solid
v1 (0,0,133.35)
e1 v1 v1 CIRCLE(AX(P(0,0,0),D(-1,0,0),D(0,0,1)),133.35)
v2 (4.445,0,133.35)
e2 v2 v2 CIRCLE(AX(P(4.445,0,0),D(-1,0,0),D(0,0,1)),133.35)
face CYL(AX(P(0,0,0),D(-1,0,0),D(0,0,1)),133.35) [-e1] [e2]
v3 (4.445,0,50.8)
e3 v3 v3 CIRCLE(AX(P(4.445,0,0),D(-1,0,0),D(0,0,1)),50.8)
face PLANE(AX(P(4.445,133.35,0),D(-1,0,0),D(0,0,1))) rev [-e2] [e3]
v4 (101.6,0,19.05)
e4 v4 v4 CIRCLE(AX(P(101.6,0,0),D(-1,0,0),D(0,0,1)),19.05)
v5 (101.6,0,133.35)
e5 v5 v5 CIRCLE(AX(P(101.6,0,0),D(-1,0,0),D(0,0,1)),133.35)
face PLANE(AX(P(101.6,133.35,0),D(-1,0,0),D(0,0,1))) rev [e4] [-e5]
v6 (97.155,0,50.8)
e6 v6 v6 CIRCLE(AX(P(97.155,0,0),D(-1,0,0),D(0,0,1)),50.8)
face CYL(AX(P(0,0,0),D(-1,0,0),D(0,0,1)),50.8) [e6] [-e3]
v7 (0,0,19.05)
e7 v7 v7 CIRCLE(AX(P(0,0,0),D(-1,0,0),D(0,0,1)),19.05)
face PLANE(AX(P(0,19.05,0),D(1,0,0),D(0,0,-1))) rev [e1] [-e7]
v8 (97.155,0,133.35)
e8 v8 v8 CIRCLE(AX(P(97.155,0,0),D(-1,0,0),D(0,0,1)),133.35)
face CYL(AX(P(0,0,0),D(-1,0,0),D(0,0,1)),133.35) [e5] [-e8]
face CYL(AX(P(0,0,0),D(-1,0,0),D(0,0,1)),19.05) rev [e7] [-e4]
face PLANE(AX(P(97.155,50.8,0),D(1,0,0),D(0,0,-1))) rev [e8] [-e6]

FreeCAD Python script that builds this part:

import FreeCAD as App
import Part
import Sketcher
Q = App.Units.Quantity


def add_polygon(sketch, points):
    """Adds a closed chain of lines whose ends are joined by coincident constraints."""
    first, n = sketch.GeometryCount, len(points)
    for a, b in zip(points, points[1:] + points[:1]):
        sketch.addGeometry(Part.LineSegment(App.Vector(*a, 0), App.Vector(*b, 0)), False)
    for i in range(n):
        sketch.addConstraint(Sketcher.Constraint("Coincident", first + i, 2, first + (i + 1) % n, 1))

doc = App.newDocument("Part")
body = doc.addObject("PartDesign::Body", "Body")

# Sketch on XY plane
sketch1 = body.newObject("Sketcher::SketchObject", "Sketch")
sketch1.AttachmentSupport = (doc.getObject("XY_Plane"), [""])
sketch1.MapMode = "FlatFace"
add_polygon(sketch1, [(0, 19.1), (101.6, 19.1), (101.6, 133.3), (97.2, 133.3), (97.2, 50.8), (4.4, 50.8), (4.4, 133.3), (0, 133.3)])  # lines 0-7
sketch1.addConstraint([
    Sketcher.Constraint("Horizontal", 0),
    Sketcher.Constraint("Vertical", 1),
    Sketcher.Constraint("Horizontal", 2),
    Sketcher.Constraint("Vertical", 3),
    Sketcher.Constraint("Horizontal", 4),
    Sketcher.Constraint("Vertical", 5),
    Sketcher.Constraint("Horizontal", 6),
    Sketcher.Constraint("Vertical", 7),
    Sketcher.Constraint("PointOnObject", 6, 2, -2),
    Sketcher.Constraint("Horizontal", 2, 2, 5, 2),
    Sketcher.Constraint("Equal", 2, 6),
    Sketcher.Constraint("DistanceX", 0, 1, 0, 2, Q("4 in")),
    Sketcher.Constraint("DistanceY", 1, 1, 1, 2, Q("4.5 in")),
    Sketcher.Constraint("DistanceY", -1, 1, 3, 2, Q("2 in")),
    Sketcher.Constraint("DistanceX", 4, 2, 4, 1, Q("3.65 in")),
    Sketcher.Constraint("DistanceY", 3, 2, 3, 1, Q("3.25 in")),
])
revolution = body.newObject("PartDesign::Revolution", "Revolution")
revolution.Profile = sketch1
revolution.ReferenceAxis = (sketch1, ["H_Axis"])
revolution.Angle = 360

doc.recompute()
